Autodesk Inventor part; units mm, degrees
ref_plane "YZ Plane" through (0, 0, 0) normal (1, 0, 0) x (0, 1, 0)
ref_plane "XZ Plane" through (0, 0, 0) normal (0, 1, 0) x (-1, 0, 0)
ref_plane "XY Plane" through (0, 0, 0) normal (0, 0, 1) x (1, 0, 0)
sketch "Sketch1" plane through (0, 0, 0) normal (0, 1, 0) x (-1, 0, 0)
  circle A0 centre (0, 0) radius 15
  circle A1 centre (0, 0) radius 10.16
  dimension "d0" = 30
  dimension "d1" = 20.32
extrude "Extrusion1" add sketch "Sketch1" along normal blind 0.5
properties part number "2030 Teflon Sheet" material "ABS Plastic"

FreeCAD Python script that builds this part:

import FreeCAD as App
import Part
import Sketcher
from FreeCAD import Vector

doc = App.newDocument("Part")
body = doc.addObject("PartDesign::Body", "Body")

# Sketch on XZ plane
sketch1 = doc.addObject("Sketcher::SketchObject", "Sketch")
body.addObject(sketch1)
sketch1.AttachmentSupport = (doc.XZ_Plane, [""])
sketch1.MapMode = "FlatFace"
sketch1.addGeometry(Part.Circle(Vector(0, 0, 0), Vector(0, 0, 1), 15), False)
sketch1.addGeometry(Part.Circle(Vector(0, 0, 0), Vector(0, 0, 1), 10.16), False)
sketch1.addConstraint(Sketcher.Constraint("Coincident", 0, 3, -1, 1))
sketch1.addConstraint(Sketcher.Constraint("Coincident", 1, 3, -1, 1))
sketch1.addConstraint(Sketcher.Constraint("Diameter", 0, 30.0))
sketch1.addConstraint(Sketcher.Constraint("Diameter", 1, 20.32))
pad1 = doc.addObject("PartDesign::Pad", "Pad")
body.addObject(pad1)
pad1.Profile = sketch1
pad1.Length = 0.5
pad1.Reversed = True

doc.recompute()
